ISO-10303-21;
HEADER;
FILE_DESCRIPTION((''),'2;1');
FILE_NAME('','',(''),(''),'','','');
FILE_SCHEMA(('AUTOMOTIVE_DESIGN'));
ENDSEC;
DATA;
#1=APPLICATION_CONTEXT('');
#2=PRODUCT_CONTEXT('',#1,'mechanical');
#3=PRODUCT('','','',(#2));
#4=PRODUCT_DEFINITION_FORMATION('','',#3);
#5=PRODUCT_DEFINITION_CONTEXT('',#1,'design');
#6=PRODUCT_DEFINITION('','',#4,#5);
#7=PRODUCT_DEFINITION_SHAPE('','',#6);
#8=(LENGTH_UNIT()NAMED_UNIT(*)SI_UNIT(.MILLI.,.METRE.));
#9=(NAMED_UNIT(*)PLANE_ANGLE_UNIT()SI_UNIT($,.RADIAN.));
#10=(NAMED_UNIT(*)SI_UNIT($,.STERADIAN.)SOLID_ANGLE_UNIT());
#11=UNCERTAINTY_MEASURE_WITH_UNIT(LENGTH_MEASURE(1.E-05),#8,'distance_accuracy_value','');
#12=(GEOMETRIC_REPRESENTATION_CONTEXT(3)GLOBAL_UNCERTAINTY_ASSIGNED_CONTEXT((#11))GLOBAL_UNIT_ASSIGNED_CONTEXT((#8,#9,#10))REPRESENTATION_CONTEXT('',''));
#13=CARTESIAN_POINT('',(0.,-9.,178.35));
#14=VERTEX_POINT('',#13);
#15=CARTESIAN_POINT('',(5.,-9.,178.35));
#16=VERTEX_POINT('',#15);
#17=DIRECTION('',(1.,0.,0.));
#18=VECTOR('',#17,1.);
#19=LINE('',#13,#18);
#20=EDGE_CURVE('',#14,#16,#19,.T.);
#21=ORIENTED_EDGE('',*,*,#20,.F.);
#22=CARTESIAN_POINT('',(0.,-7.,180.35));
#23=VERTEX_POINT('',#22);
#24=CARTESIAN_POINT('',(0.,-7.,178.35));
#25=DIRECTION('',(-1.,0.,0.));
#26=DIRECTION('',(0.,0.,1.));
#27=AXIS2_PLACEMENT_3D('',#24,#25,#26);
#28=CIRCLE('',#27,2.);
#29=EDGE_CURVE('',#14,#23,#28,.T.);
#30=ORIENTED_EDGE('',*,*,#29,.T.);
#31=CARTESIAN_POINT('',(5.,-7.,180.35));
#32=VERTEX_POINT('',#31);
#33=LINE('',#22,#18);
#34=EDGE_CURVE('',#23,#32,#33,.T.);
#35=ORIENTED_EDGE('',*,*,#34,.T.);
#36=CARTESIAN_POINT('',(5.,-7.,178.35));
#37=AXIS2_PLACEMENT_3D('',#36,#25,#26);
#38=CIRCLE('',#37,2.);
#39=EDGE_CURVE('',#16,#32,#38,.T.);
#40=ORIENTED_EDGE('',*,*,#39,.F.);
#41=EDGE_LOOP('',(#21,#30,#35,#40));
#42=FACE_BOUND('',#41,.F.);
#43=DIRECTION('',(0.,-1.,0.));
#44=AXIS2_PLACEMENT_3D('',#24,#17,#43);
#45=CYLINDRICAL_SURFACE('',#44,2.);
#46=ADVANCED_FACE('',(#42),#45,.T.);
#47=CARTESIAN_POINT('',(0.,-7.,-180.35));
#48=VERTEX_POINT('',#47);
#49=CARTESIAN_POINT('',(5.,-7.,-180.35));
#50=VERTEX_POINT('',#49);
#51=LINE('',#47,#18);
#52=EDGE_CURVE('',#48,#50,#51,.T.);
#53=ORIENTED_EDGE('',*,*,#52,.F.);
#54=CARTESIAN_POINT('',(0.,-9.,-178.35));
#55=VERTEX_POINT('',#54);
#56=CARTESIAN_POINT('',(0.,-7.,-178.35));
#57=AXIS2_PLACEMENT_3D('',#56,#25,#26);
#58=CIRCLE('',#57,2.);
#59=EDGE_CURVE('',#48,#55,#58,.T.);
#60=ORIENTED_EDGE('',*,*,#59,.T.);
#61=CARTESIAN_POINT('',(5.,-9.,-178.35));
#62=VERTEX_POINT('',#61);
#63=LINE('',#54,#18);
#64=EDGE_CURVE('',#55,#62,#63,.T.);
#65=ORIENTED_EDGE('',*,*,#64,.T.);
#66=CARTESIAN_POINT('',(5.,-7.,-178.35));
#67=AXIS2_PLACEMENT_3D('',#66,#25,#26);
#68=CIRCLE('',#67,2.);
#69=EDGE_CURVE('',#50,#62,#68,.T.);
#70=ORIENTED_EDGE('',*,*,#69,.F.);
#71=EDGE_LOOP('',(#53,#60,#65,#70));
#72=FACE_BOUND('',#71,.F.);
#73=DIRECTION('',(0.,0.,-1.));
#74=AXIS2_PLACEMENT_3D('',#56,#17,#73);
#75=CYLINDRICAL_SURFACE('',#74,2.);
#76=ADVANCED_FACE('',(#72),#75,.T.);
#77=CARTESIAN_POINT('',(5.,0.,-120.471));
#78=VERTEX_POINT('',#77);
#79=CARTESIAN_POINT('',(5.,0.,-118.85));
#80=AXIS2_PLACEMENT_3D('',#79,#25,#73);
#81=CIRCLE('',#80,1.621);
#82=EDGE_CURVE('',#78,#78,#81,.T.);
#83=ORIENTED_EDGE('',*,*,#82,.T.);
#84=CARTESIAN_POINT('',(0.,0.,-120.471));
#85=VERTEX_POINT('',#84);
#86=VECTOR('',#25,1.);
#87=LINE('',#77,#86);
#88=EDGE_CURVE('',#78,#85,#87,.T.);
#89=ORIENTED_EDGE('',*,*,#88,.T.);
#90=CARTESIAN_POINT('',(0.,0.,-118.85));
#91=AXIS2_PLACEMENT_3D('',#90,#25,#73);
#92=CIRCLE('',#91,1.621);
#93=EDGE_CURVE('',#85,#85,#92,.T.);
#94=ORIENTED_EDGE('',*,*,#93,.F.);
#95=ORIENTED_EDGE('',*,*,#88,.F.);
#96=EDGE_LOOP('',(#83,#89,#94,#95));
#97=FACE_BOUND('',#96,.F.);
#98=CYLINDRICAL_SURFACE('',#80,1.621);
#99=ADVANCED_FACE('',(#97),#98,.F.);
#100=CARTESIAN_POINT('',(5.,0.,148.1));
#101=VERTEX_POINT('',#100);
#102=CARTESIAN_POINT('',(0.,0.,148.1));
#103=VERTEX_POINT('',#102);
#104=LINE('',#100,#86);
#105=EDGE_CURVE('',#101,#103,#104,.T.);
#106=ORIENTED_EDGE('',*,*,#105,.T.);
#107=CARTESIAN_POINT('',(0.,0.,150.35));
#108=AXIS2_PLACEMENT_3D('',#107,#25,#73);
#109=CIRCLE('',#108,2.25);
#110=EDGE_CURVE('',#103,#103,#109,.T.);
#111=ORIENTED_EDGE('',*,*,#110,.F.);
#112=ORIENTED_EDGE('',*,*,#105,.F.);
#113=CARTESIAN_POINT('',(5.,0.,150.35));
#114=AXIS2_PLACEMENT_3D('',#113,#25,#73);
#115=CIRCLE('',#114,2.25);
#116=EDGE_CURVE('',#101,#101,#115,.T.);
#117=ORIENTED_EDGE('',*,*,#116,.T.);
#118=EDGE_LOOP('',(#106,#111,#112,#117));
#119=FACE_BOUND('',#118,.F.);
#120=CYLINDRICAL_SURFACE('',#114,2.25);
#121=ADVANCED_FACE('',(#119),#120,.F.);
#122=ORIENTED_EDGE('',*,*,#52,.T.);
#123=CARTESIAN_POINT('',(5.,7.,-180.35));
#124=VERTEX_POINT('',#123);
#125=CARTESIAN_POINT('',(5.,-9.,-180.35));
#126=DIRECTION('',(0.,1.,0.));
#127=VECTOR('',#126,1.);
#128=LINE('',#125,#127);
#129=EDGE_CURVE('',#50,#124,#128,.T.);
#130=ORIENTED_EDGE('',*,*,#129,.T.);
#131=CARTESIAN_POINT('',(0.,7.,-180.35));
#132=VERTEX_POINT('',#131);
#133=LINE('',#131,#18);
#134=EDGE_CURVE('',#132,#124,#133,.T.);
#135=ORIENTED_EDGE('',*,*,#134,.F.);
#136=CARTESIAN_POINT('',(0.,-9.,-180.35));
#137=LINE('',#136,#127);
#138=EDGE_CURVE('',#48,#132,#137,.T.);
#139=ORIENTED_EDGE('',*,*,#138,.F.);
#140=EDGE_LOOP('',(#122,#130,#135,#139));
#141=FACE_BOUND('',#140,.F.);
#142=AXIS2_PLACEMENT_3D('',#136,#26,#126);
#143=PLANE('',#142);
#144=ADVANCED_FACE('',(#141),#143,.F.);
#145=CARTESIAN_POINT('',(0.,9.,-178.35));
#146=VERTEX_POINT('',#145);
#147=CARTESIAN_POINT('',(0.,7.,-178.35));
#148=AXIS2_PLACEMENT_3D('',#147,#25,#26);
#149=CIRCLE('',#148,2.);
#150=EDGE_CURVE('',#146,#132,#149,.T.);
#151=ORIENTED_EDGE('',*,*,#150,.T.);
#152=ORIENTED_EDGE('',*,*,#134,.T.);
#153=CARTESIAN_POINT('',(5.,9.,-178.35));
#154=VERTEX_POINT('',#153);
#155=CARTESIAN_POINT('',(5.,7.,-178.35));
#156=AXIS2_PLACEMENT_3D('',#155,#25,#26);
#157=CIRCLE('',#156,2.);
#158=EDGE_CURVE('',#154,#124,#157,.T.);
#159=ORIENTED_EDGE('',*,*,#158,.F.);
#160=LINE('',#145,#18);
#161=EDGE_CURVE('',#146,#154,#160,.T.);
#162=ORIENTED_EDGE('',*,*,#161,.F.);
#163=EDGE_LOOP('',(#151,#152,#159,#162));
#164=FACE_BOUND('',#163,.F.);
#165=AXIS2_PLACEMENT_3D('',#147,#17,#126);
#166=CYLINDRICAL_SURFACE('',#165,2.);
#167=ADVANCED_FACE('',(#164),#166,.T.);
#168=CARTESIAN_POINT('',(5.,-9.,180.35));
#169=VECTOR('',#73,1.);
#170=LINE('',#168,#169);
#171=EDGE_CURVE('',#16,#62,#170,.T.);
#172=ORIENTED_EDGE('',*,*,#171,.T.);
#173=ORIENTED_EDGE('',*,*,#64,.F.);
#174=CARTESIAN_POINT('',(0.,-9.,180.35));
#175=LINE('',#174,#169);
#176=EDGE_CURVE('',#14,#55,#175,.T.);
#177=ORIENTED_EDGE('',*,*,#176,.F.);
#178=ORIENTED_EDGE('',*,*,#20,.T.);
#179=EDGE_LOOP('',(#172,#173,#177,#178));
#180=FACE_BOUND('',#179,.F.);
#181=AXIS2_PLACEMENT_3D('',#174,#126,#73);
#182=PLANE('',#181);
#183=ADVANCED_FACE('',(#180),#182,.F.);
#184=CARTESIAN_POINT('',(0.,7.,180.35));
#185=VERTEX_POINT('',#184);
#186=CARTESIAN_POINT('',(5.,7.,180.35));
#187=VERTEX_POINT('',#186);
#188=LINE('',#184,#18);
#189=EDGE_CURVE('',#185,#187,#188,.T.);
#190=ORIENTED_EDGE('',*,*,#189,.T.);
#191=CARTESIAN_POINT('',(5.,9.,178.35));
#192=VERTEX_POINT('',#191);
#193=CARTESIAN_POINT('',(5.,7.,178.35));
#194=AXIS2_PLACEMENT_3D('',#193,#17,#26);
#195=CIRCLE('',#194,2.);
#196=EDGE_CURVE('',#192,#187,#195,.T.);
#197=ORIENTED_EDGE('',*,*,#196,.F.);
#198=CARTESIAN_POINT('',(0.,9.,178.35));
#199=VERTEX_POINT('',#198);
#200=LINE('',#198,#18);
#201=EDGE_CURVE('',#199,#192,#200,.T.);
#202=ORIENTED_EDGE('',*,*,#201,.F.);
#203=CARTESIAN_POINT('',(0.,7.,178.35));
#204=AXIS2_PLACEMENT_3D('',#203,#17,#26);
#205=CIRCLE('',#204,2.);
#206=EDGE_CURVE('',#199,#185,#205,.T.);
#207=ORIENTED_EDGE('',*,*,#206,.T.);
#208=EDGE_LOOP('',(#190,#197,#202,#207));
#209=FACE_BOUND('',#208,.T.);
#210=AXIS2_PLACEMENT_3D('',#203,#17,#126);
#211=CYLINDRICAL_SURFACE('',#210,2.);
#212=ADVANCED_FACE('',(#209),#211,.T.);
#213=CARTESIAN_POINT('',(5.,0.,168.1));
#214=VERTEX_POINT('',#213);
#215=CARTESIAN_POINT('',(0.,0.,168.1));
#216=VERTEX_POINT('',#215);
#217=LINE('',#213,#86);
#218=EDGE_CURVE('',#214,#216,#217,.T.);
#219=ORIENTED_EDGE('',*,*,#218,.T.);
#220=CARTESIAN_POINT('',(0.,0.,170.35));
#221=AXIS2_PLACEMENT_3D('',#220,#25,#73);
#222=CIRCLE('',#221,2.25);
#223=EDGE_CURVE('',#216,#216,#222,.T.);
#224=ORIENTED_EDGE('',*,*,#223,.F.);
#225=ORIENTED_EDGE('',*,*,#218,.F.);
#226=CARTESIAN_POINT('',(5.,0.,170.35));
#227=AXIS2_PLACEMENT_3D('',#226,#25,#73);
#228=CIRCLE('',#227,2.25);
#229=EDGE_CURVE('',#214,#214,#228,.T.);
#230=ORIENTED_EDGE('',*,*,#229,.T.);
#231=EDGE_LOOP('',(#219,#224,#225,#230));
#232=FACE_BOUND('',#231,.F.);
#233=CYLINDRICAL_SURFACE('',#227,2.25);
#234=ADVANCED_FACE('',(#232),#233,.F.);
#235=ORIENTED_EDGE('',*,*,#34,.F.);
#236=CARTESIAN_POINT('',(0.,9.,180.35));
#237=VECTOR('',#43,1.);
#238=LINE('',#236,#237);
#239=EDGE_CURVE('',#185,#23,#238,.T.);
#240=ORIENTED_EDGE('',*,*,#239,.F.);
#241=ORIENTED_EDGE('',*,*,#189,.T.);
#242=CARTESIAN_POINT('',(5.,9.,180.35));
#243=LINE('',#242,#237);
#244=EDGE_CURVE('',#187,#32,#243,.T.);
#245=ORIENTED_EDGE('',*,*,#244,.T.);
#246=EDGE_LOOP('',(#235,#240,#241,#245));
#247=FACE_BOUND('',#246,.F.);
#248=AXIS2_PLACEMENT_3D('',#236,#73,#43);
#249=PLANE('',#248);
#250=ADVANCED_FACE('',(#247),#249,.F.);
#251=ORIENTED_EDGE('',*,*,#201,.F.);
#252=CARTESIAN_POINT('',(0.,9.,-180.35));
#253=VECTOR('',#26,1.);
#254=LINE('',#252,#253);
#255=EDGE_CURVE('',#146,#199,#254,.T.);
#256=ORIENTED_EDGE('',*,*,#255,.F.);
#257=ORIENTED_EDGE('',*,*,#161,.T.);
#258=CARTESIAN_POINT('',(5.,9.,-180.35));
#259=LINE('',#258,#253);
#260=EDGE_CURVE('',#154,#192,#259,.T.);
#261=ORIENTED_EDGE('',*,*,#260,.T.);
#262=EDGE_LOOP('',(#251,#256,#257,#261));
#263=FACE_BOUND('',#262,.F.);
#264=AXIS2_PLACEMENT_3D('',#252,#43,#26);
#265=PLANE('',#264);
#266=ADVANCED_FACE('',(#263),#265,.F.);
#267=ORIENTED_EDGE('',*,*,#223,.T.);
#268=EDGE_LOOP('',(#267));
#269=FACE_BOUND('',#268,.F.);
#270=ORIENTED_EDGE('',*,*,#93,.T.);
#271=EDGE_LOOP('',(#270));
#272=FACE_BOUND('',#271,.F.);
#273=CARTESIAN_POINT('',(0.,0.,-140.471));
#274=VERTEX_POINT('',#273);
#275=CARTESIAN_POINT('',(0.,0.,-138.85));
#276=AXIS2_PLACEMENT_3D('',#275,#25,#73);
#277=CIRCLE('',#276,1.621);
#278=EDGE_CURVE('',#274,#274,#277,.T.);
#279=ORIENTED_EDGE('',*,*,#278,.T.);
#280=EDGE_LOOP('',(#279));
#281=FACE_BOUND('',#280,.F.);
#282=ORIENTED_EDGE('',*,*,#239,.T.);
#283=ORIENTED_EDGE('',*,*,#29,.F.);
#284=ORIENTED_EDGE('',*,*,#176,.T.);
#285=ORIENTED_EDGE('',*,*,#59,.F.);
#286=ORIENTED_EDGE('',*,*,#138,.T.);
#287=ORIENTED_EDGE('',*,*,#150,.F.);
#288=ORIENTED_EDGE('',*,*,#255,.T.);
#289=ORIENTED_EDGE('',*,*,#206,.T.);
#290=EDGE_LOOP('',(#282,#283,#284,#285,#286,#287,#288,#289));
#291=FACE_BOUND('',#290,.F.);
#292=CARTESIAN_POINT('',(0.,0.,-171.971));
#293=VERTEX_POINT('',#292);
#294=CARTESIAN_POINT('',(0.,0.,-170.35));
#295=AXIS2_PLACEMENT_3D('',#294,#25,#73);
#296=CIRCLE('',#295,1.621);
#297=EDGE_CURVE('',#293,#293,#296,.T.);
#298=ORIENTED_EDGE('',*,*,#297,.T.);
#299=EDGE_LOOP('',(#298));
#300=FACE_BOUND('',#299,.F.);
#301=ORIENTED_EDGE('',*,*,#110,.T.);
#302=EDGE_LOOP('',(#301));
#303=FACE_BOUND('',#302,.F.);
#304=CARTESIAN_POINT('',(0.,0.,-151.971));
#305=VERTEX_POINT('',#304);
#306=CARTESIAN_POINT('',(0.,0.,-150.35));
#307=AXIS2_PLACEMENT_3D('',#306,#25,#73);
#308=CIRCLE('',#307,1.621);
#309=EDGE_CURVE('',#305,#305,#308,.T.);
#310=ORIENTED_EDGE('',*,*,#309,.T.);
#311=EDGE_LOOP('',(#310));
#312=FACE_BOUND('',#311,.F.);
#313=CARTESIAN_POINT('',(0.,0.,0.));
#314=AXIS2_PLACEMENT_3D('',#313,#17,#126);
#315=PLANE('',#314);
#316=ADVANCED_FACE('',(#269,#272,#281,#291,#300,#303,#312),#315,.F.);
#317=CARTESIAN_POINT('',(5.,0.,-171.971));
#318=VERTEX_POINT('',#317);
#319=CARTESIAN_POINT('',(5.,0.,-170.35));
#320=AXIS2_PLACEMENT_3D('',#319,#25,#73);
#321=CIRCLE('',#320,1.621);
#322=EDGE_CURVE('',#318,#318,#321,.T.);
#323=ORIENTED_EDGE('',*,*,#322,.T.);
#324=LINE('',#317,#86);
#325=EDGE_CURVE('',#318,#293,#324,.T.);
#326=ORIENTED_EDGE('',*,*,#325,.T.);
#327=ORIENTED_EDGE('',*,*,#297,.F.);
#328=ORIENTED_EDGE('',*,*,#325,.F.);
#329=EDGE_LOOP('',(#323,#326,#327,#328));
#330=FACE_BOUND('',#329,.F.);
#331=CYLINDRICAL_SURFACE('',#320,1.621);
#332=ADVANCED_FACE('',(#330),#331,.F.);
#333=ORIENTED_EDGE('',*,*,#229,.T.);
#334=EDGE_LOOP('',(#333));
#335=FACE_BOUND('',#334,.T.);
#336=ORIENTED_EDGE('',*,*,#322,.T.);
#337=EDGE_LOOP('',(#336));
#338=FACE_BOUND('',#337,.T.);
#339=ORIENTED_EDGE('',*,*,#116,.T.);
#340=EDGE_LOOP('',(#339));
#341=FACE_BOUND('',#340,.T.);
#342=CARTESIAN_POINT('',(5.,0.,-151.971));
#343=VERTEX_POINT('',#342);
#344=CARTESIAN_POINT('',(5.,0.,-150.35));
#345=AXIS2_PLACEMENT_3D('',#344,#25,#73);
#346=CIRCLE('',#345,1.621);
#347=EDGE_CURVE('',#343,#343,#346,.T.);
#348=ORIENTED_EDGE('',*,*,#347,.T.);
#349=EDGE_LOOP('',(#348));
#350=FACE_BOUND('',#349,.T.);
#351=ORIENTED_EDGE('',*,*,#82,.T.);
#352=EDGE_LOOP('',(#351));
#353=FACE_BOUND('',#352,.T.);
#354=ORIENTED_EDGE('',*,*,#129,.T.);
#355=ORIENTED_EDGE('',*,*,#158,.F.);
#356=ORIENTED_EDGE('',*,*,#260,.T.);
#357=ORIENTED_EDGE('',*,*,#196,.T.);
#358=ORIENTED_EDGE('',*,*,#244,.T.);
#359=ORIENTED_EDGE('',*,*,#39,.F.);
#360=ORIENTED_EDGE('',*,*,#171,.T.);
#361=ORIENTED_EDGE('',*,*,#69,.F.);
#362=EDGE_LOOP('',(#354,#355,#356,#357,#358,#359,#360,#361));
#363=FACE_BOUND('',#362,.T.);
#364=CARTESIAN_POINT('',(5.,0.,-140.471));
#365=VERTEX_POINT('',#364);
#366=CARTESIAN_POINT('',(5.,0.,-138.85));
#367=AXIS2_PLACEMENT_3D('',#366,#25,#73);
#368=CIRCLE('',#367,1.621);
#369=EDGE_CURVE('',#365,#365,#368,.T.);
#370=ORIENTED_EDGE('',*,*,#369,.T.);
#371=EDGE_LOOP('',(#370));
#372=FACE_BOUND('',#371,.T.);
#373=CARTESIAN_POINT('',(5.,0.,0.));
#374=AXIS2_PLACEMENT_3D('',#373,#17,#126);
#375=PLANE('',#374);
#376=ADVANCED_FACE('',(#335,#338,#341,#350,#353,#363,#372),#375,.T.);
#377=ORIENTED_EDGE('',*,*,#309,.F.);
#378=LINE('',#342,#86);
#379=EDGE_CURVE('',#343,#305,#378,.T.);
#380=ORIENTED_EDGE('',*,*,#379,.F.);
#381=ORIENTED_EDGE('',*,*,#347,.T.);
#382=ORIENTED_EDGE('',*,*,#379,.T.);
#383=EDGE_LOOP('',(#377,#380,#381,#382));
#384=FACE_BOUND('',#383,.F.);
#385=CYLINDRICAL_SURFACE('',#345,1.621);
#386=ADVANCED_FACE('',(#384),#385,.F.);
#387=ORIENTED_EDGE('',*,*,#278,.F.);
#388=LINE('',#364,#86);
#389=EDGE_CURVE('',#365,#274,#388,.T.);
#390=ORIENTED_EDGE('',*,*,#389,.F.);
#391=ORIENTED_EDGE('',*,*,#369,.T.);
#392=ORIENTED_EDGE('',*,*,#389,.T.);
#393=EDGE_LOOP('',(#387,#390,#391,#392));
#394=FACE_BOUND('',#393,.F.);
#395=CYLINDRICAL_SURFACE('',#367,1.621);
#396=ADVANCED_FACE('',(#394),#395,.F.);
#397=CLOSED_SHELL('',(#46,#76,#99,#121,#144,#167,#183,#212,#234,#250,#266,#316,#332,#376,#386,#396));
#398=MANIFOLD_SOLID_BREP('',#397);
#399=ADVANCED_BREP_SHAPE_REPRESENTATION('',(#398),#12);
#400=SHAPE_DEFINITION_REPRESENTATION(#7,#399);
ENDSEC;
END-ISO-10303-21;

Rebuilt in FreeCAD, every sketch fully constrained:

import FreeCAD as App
import Part
import Sketcher
from FreeCAD import Vector


def edges_at(feature, points):
    """Names of the edges that pass closest to the given points."""
    edges = feature.Shape.Edges
    near = lambda p: min(range(len(edges)), key=lambda i: edges[i].distToShape(Part.Vertex(*p))[0])
    return sorted({f"Edge{near(p) + 1}" for p in points})


def add_polygon(sketch, points):
    """Adds a closed chain of lines whose ends are joined by coincident constraints."""
    first, n = sketch.GeometryCount, len(points)
    for a, b in zip(points, points[1:] + points[:1]):
        sketch.addGeometry(Part.LineSegment(App.Vector(*a, 0), App.Vector(*b, 0)), False)
    for i in range(n):
        sketch.addConstraint(Sketcher.Constraint("Coincident", first + i, 2, first + (i + 1) % n, 1))

doc = App.newDocument("Part")
body = doc.addObject("PartDesign::Body", "Body")

sketch1 = body.newObject("Sketcher::SketchObject", "Sketch")
sketch1.AttachmentSupport = (doc.getObject("YZ_Plane"), [""])
sketch1.MapMode = "FlatFace"
add_polygon(sketch1, [(9, -180), (9, 180), (-9, 180), (-9, -180)])
sketch1.addConstraint([
    Sketcher.Constraint("Vertical", 0),
    Sketcher.Constraint("Horizontal", 1),
    Sketcher.Constraint("Vertical", 2),
    Sketcher.Constraint("Horizontal", 3),
    Sketcher.Constraint("Symmetric", 0, 2, 2, 2, -1, 1),
    Sketcher.Constraint("DistanceX", 1, 2, 1, 1, 18.0),
    Sketcher.Constraint("DistanceY", 0, 1, 0, 2, 360.7),
])
pad1 = body.newObject("PartDesign::Pad", "Pad")
pad1.Profile = sketch1
pad1.Length = 5
doc.recompute()

fillet = body.newObject("PartDesign::Fillet", "Fillet")
fillet.Base = (pad1, edges_at(pad1, [
    (2.5, 9, 180.35),
    (2.5, -9, 180.35),
    (2.5, 9, -180.35),
    (2.5, -9, -180.35),
]))
fillet.Radius = 2

sketch2 = body.newObject("Sketcher::SketchObject", "Sketch001")
sketch2.AttachmentSupport = (doc.getObject("YZ_Plane"), [""])
sketch2.MapMode = "FlatFace"
sketch2.AttachmentOffset = App.Placement(Vector(0, 0, 5), App.Rotation())
sketch2.addGeometry([
    Part.Circle(Vector(0, -138.8, 0), Vector(0, 0, 1), 1.6),
    Part.Circle(Vector(0, -118.8, 0), Vector(0, 0, 1), 1.6),
    Part.Circle(Vector(0, -170.3, 0), Vector(0, 0, 1), 1.6),
    Part.Circle(Vector(0, -150.3, 0), Vector(0, 0, 1), 1.6),
], False)
sketch2.addConstraint([
    Sketcher.Constraint("Equal", 0, 1),
    Sketcher.Constraint("Equal", 1, 2),
    Sketcher.Constraint("Equal", 2, 3),
    Sketcher.Constraint("PointOnObject", 0, 3, -2),
    Sketcher.Constraint("PointOnObject", 1, 3, -2),
    Sketcher.Constraint("PointOnObject", 2, 3, -2),
    Sketcher.Constraint("PointOnObject", 3, 3, -2),
    Sketcher.Constraint("Diameter", 0, 3.242),
    Sketcher.Constraint("DistanceY", 0, 3, 1, 3, 20.0),
    Sketcher.Constraint("DistanceY", 2, 3, 3, 3, 20.0),
    Sketcher.Constraint("DistanceY", 2, 3, 0, 3, 31.5),
    Sketcher.Constraint("DistanceY", 0, 3, -1, 1, 138.85),
])
doc.recompute()
hole = body.newObject("PartDesign::Hole", "Hole")
hole.Profile = sketch2
hole.ThreadType = "None"
hole.Diameter = 3.242
hole.DepthType = "ThroughAll"

sketch3 = body.newObject("Sketcher::SketchObject", "Sketch002")
sketch3.AttachmentSupport = (doc.getObject("YZ_Plane"), [""])
sketch3.MapMode = "FlatFace"
sketch3.AttachmentOffset = App.Placement(Vector(0, 0, 5), App.Rotation())
sketch3.addGeometry([
    Part.Circle(Vector(0, 170.3, 0), Vector(0, 0, 1), 2.2),
    Part.Circle(Vector(0, 150.3, 0), Vector(0, 0, 1), 2.2),
], False)
sketch3.addConstraint([
    Sketcher.Constraint("Equal", 0, 1),
    Sketcher.Constraint("PointOnObject", 0, 3, -2),
    Sketcher.Constraint("PointOnObject", 1, 3, -2),
    Sketcher.Constraint("Diameter", 0, 4.5),
    Sketcher.Constraint("DistanceY", 1, 3, 0, 3, 20.0),
    Sketcher.Constraint("DistanceY", -1, 1, 0, 3, 170.35),
])
doc.recompute()
hole2 = body.newObject("PartDesign::Hole", "Hole001")
hole2.Profile = sketch3
hole2.ThreadType = "None"
hole2.Diameter = 4.5
hole2.DepthType = "ThroughAll"

doc.recompute()
